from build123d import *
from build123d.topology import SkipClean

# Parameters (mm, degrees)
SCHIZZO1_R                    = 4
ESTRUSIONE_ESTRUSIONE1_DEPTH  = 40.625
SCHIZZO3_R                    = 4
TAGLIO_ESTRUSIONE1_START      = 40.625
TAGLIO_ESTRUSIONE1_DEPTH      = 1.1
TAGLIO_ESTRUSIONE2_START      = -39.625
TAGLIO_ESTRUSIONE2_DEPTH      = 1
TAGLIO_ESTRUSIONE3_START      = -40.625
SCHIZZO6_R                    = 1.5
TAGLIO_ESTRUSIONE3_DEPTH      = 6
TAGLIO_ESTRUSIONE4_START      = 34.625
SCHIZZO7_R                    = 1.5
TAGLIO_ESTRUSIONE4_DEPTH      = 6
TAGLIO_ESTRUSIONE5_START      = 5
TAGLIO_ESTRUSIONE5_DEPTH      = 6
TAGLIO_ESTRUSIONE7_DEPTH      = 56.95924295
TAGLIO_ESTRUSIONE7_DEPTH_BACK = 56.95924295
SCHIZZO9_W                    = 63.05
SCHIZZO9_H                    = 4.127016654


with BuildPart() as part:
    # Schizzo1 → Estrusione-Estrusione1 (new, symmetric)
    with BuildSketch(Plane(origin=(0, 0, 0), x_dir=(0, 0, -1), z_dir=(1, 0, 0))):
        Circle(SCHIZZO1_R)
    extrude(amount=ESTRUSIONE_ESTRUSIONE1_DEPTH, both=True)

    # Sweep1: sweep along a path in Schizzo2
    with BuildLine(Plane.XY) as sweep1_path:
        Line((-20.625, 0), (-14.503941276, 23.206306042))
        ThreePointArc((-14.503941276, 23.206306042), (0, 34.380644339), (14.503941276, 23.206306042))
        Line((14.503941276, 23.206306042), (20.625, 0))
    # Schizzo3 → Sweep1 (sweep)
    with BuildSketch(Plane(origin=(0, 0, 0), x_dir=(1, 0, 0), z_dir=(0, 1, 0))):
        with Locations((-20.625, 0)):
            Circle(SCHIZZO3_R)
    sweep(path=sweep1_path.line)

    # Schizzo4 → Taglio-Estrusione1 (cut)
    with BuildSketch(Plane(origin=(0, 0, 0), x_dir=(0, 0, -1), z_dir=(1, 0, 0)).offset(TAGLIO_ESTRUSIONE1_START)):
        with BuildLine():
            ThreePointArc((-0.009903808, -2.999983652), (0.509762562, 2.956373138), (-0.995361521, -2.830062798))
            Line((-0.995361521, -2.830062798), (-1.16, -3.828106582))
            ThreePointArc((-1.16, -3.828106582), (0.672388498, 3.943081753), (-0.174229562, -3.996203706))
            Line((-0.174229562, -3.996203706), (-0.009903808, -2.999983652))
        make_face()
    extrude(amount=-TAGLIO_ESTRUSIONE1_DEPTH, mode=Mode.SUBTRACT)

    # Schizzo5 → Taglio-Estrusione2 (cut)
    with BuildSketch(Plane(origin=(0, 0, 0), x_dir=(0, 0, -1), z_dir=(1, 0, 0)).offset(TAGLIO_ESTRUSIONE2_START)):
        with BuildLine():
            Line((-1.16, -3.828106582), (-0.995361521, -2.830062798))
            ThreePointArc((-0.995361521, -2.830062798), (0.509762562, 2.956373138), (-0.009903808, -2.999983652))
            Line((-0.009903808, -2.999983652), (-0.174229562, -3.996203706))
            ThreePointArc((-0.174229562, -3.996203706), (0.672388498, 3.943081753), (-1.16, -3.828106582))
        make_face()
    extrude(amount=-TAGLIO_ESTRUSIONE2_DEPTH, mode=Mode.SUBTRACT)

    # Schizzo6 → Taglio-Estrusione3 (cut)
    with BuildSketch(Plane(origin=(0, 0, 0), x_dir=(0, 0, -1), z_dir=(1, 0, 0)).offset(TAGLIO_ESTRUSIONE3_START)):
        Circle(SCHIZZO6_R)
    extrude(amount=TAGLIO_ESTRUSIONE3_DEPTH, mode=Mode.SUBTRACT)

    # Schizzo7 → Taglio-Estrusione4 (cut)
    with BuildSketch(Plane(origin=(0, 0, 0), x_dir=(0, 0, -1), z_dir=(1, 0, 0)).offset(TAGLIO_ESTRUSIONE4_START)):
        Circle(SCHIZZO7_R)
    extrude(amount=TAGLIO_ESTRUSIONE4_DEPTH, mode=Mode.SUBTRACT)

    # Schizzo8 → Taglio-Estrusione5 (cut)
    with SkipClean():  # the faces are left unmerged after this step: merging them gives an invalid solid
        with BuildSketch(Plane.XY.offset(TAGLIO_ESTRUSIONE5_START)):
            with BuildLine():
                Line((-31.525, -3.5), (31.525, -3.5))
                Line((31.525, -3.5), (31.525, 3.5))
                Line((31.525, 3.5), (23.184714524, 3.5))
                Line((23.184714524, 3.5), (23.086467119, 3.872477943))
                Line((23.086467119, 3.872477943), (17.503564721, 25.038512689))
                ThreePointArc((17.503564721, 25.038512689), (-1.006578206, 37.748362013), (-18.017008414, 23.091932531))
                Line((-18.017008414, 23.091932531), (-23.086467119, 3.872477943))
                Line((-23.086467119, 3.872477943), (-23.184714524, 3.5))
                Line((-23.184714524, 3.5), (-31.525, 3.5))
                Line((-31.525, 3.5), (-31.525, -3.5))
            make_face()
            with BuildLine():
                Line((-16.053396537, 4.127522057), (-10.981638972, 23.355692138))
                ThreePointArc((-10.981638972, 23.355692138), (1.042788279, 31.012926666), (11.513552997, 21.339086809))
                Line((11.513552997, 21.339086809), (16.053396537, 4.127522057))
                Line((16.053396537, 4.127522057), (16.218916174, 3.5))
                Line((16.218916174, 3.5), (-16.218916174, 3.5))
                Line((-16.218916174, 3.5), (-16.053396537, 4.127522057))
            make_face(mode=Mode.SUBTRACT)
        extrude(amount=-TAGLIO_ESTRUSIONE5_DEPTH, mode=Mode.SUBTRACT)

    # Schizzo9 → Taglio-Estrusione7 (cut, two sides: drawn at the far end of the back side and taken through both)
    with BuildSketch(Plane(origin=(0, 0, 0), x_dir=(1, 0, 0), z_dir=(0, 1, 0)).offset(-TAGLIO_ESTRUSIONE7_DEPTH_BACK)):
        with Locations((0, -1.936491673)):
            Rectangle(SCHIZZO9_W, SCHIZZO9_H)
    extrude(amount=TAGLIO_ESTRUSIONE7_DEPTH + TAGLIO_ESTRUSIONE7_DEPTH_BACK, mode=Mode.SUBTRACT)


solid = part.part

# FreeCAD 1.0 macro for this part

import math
import FreeCAD as App
import Part
import Sketcher

V = App.Vector


def add_polygon(sketch, points):
    """Adds a closed chain of lines whose ends are joined by coincident constraints."""
    first, n = sketch.GeometryCount, len(points)
    for a, b in zip(points, points[1:] + points[:1]):
        sketch.addGeometry(Part.LineSegment(App.Vector(*a, 0), App.Vector(*b, 0)), False)
    for i in range(n):
        sketch.addConstraint(Sketcher.Constraint("Coincident", first + i, 2, first + (i + 1) % n, 1))

doc = App.newDocument("Part")
body = doc.addObject("PartDesign::Body", "Body")

sketch1 = doc.addObject("Sketcher::SketchObject", "Sketch")
body.addObject(sketch1)
sketch1.AttachmentSupport = (doc.YZ_Plane, [""])
sketch1.MapMode = "FlatFace"
sketch1.addGeometry(Part.Circle(V(0, 0, 0), V(0, 0, 1), 4), False)
sketch1.addConstraint([
    Sketcher.Constraint("Coincident", 0, 3, -1, 1),
    Sketcher.Constraint("Diameter", 0, 8.0),
])
pad1 = doc.addObject("PartDesign::Pad", "Pad")
body.addObject(pad1)
pad1.Profile = sketch1
pad1.Length = 81.25
pad1.Midplane = True

sketch2 = doc.addObject("Sketcher::SketchObject", "Sketch001")
body.addObject(sketch2)
sketch2.AttachmentSupport = (doc.XZ_Plane, [""])
sketch2.MapMode = "FlatFace"
sketch2.addGeometry(Part.Circle(V(-20.6, 0, 0), V(0, 0, 1), 4), False)
sketch2.addConstraint([
    Sketcher.Constraint("PointOnObject", 0, 3, -1),
    Sketcher.Constraint("Diameter", 0, 8.0),
    Sketcher.Constraint("DistanceX", 0, 3, -1, 1, 20.625),
])

sketch3 = doc.addObject("Sketcher::SketchObject", "Sketch002")
body.addObject(sketch3)
sketch3.AttachmentSupport = (doc.XY_Plane, [""])
sketch3.MapMode = "FlatFace"
sketch3.addGeometry([
    Part.LineSegment(V(-21, 0, 0), V(-15, 23, 0)),
    Part.ArcOfCircle(Part.Circle(V(0, 19, 0), V(0, 0, 1), 15), math.radians(15), math.radians(165)),
    Part.LineSegment(V(15, 23, 0), V(21, 0, 0)),
], False)
sketch3.addConstraint([
    Sketcher.Constraint("Tangent", 0, 2, 1, 2),
    Sketcher.Constraint("Tangent", 1, 1, 2, 1),
    Sketcher.Constraint("Symmetric", 0, 1, 2, 2, -1, 1),
    Sketcher.Constraint("Symmetric", 0, 2, 1, 1, -2),
    Sketcher.Constraint("Radius", 1, 15.0),
    Sketcher.Constraint("Distance", 0, 24.0),
    Sketcher.Constraint("DistanceX", 0, 1, 2, 2, 41.25),
])
doc.recompute()

additivepipe = doc.addObject("PartDesign::AdditivePipe", "AdditivePipe")
body.addObject(additivepipe)
additivepipe.Profile = sketch2
additivepipe.Spine = (sketch3, ["Edge1", "Edge2", "Edge3"])

sketch4 = doc.addObject("Sketcher::SketchObject", "Sketch003")
body.addObject(sketch4)
sketch4.AttachmentSupport = (doc.YZ_Plane, [""])
sketch4.MapMode = "FlatFace"
sketch4.AttachmentOffset = App.Placement(V(0, 0, 40.625), App.Rotation())
sketch4.addGeometry([
    Part.ArcOfCircle(Part.Circle(V(0, 0, 0), V(0, 0, 1), 3), math.radians(180), math.radians(521)),
    Part.LineSegment(V(-3, 0, 0), V(-4, 0.2, 0)),
    Part.ArcOfCircle(Part.Circle(V(0, 0, 0), V(0, 0, 1), 4), math.radians(178), math.radians(523)),
    Part.LineSegment(V(-3.8, 1.2, 0), V(-2.8, 1, 0)),
], False)
sketch4.addConstraint([
    Sketcher.Constraint("Coincident", 0, 1, 1, 1),
    Sketcher.Constraint("Coincident", 1, 2, 2, 1),
    Sketcher.Constraint("Coincident", 2, 2, 3, 1),
    Sketcher.Constraint("Coincident", 3, 2, 0, 2),
    Sketcher.Constraint("Coincident", 0, 3, -1, 1),
    Sketcher.Constraint("Coincident", 2, 3, -1, 1),
    Sketcher.Constraint("Radius", 0, 3.0),
    Sketcher.Constraint("Radius", 2, 4.0),
    Sketcher.Constraint("DistanceY", -1, 1, 2, 2, 1.16),
    Sketcher.Constraint("Distance", 1, 1.009682),
    Sketcher.Constraint("DistanceY", -1, 1, 1, 2, 0.17423),
    Sketcher.Constraint("DistanceY", -1, 1, 3, 2, 0.995362),
])
pocket1 = doc.addObject("PartDesign::Pocket", "Pocket")
body.addObject(pocket1)
pocket1.Profile = sketch4
pocket1.Length = 1.1

sketch5 = doc.addObject("Sketcher::SketchObject", "Sketch004")
body.addObject(sketch5)
sketch5.AttachmentSupport = (doc.YZ_Plane, [""])
sketch5.MapMode = "FlatFace"
sketch5.AttachmentOffset = App.Placement(V(0, 0, -39.625), App.Rotation())
sketch5.addGeometry([
    Part.LineSegment(V(-3.8, 1.2, 0), V(-2.8, 1, 0)),
    Part.ArcOfCircle(Part.Circle(V(0, 0, 0), V(0, 0, 1), 3), math.radians(180), math.radians(521)),
    Part.LineSegment(V(-3, 0, 0), V(-4, 0.2, 0)),
    Part.ArcOfCircle(Part.Circle(V(0, 0, 0), V(0, 0, 1), 4), math.radians(178), math.radians(523)),
], False)
sketch5.addConstraint([
    Sketcher.Constraint("Coincident", 0, 2, 1, 2),
    Sketcher.Constraint("Coincident", 1, 1, 2, 1),
    Sketcher.Constraint("Coincident", 2, 2, 3, 1),
    Sketcher.Constraint("Coincident", 3, 2, 0, 1),
    Sketcher.Constraint("Coincident", 1, 3, -1, 1),
    Sketcher.Constraint("Coincident", 3, 3, -1, 1),
    Sketcher.Constraint("Radius", 1, 3.0),
    Sketcher.Constraint("Radius", 3, 4.0),
    Sketcher.Constraint("DistanceY", -1, 1, 3, 2, 1.16),
    Sketcher.Constraint("Distance", 2, 1.009682),
    Sketcher.Constraint("DistanceY", -1, 1, 0, 2, 0.995362),
    Sketcher.Constraint("DistanceY", -1, 1, 2, 2, 0.17423),
])
pocket2 = doc.addObject("PartDesign::Pocket", "Pocket001")
body.addObject(pocket2)
pocket2.Profile = sketch5
pocket2.Length = 1

sketch6 = doc.addObject("Sketcher::SketchObject", "Sketch005")
body.addObject(sketch6)
sketch6.AttachmentSupport = (doc.YZ_Plane, [""])
sketch6.MapMode = "FlatFace"
sketch6.AttachmentOffset = App.Placement(V(0, 0, -40.625), App.Rotation())
sketch6.addGeometry(Part.Circle(V(0, 0, 0), V(0, 0, 1), 1.5), False)
sketch6.addConstraint([
    Sketcher.Constraint("Coincident", 0, 3, -1, 1),
    Sketcher.Constraint("Diameter", 0, 3.0),
])
pocket3 = doc.addObject("PartDesign::Pocket", "Pocket002")
body.addObject(pocket3)
pocket3.Profile = sketch6
pocket3.Length = 6
pocket3.Reversed = True

sketch7 = doc.addObject("Sketcher::SketchObject", "Sketch006")
body.addObject(sketch7)
sketch7.AttachmentSupport = (doc.YZ_Plane, [""])
sketch7.MapMode = "FlatFace"
sketch7.AttachmentOffset = App.Placement(V(0, 0, 34.625), App.Rotation())
sketch7.addGeometry(Part.Circle(V(0, 0, 0), V(0, 0, 1), 1.5), False)
sketch7.addConstraint([
    Sketcher.Constraint("Coincident", 0, 3, -1, 1),
    Sketcher.Constraint("Diameter", 0, 3.0),
])
pocket4 = doc.addObject("PartDesign::Pocket", "Pocket003")
body.addObject(pocket4)
pocket4.Profile = sketch7
pocket4.Length = 6
pocket4.Reversed = True

sketch8 = doc.addObject("Sketcher::SketchObject", "Sketch007")
body.addObject(sketch8)
sketch8.AttachmentSupport = (doc.XY_Plane, [""])
sketch8.MapMode = "FlatFace"
sketch8.AttachmentOffset = App.Placement(V(0, 0, 5), App.Rotation())
sketch8.addGeometry([
    Part.LineSegment(V(-31.52, -3.5, 0), V(31.52, -3.5, 0)),
    Part.LineSegment(V(31.52, -3.5, 0), V(31.52, 3.5, 0)),
    Part.LineSegment(V(31.52, 3.5, 0), V(23.18, 3.5, 0)),
    Part.LineSegment(V(23.18, 3.5, 0), V(23.09, 3.87, 0)),
    Part.LineSegment(V(23.09, 3.87, 0), V(17.5, 25.04, 0)),
    Part.ArcOfCircle(Part.Circle(V(0, 19.38, 0), V(0, 0, 1), 18.4), math.radians(18), math.radians(168)),
    Part.LineSegment(V(-18.02, 23.09, 0), V(-23.09, 3.87, 0)),
    Part.LineSegment(V(-23.09, 3.87, 0), V(-23.18, 3.5, 0)),
    Part.LineSegment(V(-23.18, 3.5, 0), V(-31.52, 3.5, 0)),
    Part.LineSegment(V(-31.52, 3.5, 0), V(-31.52, -3.5, 0)),
    Part.LineSegment(V(-16.22, 3.5, 0), V(-16.05, 4.13, 0)),
    Part.LineSegment(V(-16.05, 4.13, 0), V(-10.98, 23.36, 0)),
    Part.ArcOfCircle(Part.Circle(V(0, 19.38, 0), V(0, 0, 1), 11.68), math.radians(10), math.radians(160)),
    Part.LineSegment(V(11.51, 21.34, 0), V(16.05, 4.13, 0)),
    Part.LineSegment(V(16.05, 4.13, 0), V(16.22, 3.5, 0)),
    Part.LineSegment(V(16.22, 3.5, 0), V(-16.22, 3.5, 0)),
], False)
sketch8.addConstraint([
    Sketcher.Constraint("Coincident", 0, 2, 1, 1),
    Sketcher.Constraint("Coincident", 1, 2, 2, 1),
    Sketcher.Constraint("Coincident", 2, 2, 3, 1),
    Sketcher.Constraint("Coincident", 3, 2, 4, 1),
    Sketcher.Constraint("Coincident", 4, 2, 5, 1),
    Sketcher.Constraint("Coincident", 5, 2, 6, 1),
    Sketcher.Constraint("Coincident", 6, 2, 7, 1),
    Sketcher.Constraint("Coincident", 7, 2, 8, 1),
    Sketcher.Constraint("Coincident", 8, 2, 9, 1),
    Sketcher.Constraint("Coincident", 9, 2, 0, 1),
    Sketcher.Constraint("Coincident", 10, 2, 11, 1),
    Sketcher.Constraint("Coincident", 11, 2, 12, 2),
    Sketcher.Constraint("Coincident", 12, 1, 13, 1),
    Sketcher.Constraint("Coincident", 13, 2, 14, 1),
    Sketcher.Constraint("Coincident", 14, 2, 15, 1),
    Sketcher.Constraint("Coincident", 15, 2, 10, 1),
    Sketcher.Constraint("Horizontal", 0),
    Sketcher.Constraint("Vertical", 1),
    Sketcher.Constraint("Horizontal", 2),
    Sketcher.Constraint("Horizontal", 8),
    Sketcher.Constraint("Vertical", 9),
    Sketcher.Constraint("Horizontal", 15),
    Sketcher.Constraint("Coincident", 12, 3, 5, 3),
    Sketcher.Constraint("Symmetric", 0, 2, 8, 2, -1, 1),
    Sketcher.Constraint("Symmetric", 3, 2, 6, 2, -2),
    Sketcher.Constraint("Symmetric", 2, 2, 7, 2, -2),
    Sketcher.Constraint("Symmetric", 10, 2, 13, 2, -2),
    Sketcher.Constraint("PointOnObject", 5, 3, -2),
    Sketcher.Constraint("Parallel", 3, 4),
    Sketcher.Constraint("Parallel", 7, 10),
    Sketcher.Constraint("Parallel", 10, 11),
    Sketcher.Constraint("Parallel", 4, 13),
    Sketcher.Constraint("Parallel", 13, 14),
    Sketcher.Constraint("Horizontal", 8, 2, 14, 2),
    Sketcher.Constraint("DistanceY", 1, 1, 1, 2, 7.0),
    Sketcher.Constraint("DistanceX", 0, 1, 0, 2, 63.05),
    Sketcher.Constraint("Radius", 12, 11.67893),
    Sketcher.Constraint("Radius", 5, 18.395278),
    Sketcher.Constraint("DistanceX", 14, 2, 2, 2, 6.965798),
    Sketcher.Constraint("Distance", 4, 21.889948),
    Sketcher.Constraint("Distance", 6, 19.876792),
    Sketcher.Constraint("Distance", 13, 17.800229),
    Sketcher.Constraint("DistanceX", 2, 2, 2, 1, 8.340285),
    Sketcher.Constraint("DistanceX", 5, 2, -1, 1, 18.017008),
    Sketcher.Constraint("DistanceX", 11, 2, -1, 1, 10.981639),
])
pocket5 = doc.addObject("PartDesign::Pocket", "Pocket004")
body.addObject(pocket5)
pocket5.Profile = sketch8
pocket5.Length = 6

sketch9 = doc.addObject("Sketcher::SketchObject", "Sketch008")
body.addObject(sketch9)
sketch9.AttachmentSupport = (doc.XZ_Plane, [""])
sketch9.MapMode = "FlatFace"
add_polygon(sketch9, [(-31.5, -0.1), (-31.5, 4), (31.5, 4), (31.5, -0.1)])
sketch9.addConstraint([
    Sketcher.Constraint("Vertical", 0),
    Sketcher.Constraint("Horizontal", 1),
    Sketcher.Constraint("Vertical", 2),
    Sketcher.Constraint("Horizontal", 3),
    Sketcher.Constraint("DistanceY", -1, 1, 0, 2, 4.0),
    Sketcher.Constraint("DistanceX", 1, 1, 1, 2, 63.05),
    Sketcher.Constraint("DistanceX", 0, 2, -1, 1, 31.525),
    Sketcher.Constraint("DistanceY", 0, 1, 0, 2, 4.127017),
])
pocket6 = doc.addObject("PartDesign::Pocket", "Pocket005")
body.addObject(pocket6)
pocket6.Profile = sketch9
pocket6.Type = "ThroughAll"
pocket6.Midplane = True

doc.recompute()
